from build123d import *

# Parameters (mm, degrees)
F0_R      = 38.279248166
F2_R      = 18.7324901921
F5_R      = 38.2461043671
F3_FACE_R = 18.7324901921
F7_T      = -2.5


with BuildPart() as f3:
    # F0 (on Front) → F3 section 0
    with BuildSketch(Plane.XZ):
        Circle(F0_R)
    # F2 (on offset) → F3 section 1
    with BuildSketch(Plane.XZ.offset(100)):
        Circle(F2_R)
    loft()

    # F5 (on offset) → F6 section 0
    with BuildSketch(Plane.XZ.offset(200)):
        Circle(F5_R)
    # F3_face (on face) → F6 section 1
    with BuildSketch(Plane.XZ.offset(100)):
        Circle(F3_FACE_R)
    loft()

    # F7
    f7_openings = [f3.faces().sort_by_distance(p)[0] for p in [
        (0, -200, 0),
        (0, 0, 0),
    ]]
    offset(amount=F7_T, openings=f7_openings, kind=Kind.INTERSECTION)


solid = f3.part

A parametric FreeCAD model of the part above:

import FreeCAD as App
import Part
import Sketcher
from FreeCAD import Vector
Q = App.Units.Quantity


def faces_at(feature, points):
    """Names of the faces that lie closest to the given points."""
    faces = feature.Shape.Faces
    near = lambda p: min(range(len(faces)), key=lambda i: faces[i].distToShape(Part.Vertex(*p))[0])
    return sorted({f"Face{near(p) + 1}" for p in points})

doc = App.newDocument("Part")
params = doc.addObject("Spreadsheet::Sheet", "Params")
for row, (alias, value) in enumerate([
    ("thickness_wall", "2.5 mm"),
], start=1):
    params.set(f"A{row}", alias)
    params.set(f"B{row}", "=" + value)
    params.setAlias(f"B{row}", alias)

body = doc.addObject("PartDesign::Body", "Body")

# Sketch on XZ plane
sketch1 = body.newObject("Sketcher::SketchObject", "Sketch")
sketch1.AttachmentSupport = (doc.getObject("XZ_Plane"), [""])
sketch1.MapMode = "FlatFace"
sketch1.addGeometry(Part.Circle(Vector(0, 0, 0), Vector(0, 0, 1), 38), False)
sketch1.addConstraint([
    Sketcher.Constraint("Coincident", 0, 3, -1, 1),
    Sketcher.Constraint("Diameter", 0, Q("76.558496 mm")),
])

# Sketch on XZ plane
sketch2 = body.newObject("Sketcher::SketchObject", "Sketch001")
sketch2.AttachmentSupport = (doc.getObject("XZ_Plane"), [""])
sketch2.MapMode = "FlatFace"
sketch2.AttachmentOffset = App.Placement(Vector(0, 0, 100), App.Rotation())
sketch2.addGeometry(Part.Circle(Vector(0, 0, 0), Vector(0, 0, 1), 19), False)
sketch2.addConstraint([
    Sketcher.Constraint("Coincident", 0, 3, -1, 1),
    Sketcher.Constraint("Diameter", 0, Q("37.46498 mm")),
])

additiveloft = body.newObject("PartDesign::AdditiveLoft", "AdditiveLoft")
additiveloft.Profile = sketch1
additiveloft.Sections = [sketch2]

# Sketch on XZ plane
sketch3 = body.newObject("Sketcher::SketchObject", "Sketch002")
sketch3.AttachmentSupport = (doc.getObject("XZ_Plane"), [""])
sketch3.MapMode = "FlatFace"
sketch3.AttachmentOffset = App.Placement(Vector(0, 0, 200), App.Rotation())
sketch3.addGeometry(Part.Circle(Vector(0, 0, 0), Vector(0, 0, 1), 38), False)
sketch3.addConstraint([
    Sketcher.Constraint("Coincident", 0, 3, -1, 1),
    Sketcher.Constraint("Diameter", 0, Q("76.492209 mm")),
])

# Sketch on XZ plane
sketch4 = body.newObject("Sketcher::SketchObject", "Sketch003")
sketch4.AttachmentSupport = (doc.getObject("XZ_Plane"), [""])
sketch4.MapMode = "FlatFace"
sketch4.AttachmentOffset = App.Placement(Vector(0, 0, 100), App.Rotation())
sketch4.addGeometry(Part.Circle(Vector(0, 0, 0), Vector(0, 0, 1), 19), False)
sketch4.addConstraint([
    Sketcher.Constraint("Coincident", 0, 3, -1, 1),
    Sketcher.Constraint("Diameter", 0, Q("37.46498 mm")),
])

additiveloft2 = body.newObject("PartDesign::AdditiveLoft", "AdditiveLoft001")
additiveloft2.Profile = sketch3
additiveloft2.Sections = [sketch4]
doc.recompute()

thickness = body.newObject("PartDesign::Thickness", "Thickness")
thickness.Base = (additiveloft2, faces_at(additiveloft2, [(0, -200, 0), (0, 0, 0)]))
thickness.setExpression("Value", "Params.thickness_wall")
thickness.Reversed = True
thickness.Join = "Intersection"

doc.recompute()
